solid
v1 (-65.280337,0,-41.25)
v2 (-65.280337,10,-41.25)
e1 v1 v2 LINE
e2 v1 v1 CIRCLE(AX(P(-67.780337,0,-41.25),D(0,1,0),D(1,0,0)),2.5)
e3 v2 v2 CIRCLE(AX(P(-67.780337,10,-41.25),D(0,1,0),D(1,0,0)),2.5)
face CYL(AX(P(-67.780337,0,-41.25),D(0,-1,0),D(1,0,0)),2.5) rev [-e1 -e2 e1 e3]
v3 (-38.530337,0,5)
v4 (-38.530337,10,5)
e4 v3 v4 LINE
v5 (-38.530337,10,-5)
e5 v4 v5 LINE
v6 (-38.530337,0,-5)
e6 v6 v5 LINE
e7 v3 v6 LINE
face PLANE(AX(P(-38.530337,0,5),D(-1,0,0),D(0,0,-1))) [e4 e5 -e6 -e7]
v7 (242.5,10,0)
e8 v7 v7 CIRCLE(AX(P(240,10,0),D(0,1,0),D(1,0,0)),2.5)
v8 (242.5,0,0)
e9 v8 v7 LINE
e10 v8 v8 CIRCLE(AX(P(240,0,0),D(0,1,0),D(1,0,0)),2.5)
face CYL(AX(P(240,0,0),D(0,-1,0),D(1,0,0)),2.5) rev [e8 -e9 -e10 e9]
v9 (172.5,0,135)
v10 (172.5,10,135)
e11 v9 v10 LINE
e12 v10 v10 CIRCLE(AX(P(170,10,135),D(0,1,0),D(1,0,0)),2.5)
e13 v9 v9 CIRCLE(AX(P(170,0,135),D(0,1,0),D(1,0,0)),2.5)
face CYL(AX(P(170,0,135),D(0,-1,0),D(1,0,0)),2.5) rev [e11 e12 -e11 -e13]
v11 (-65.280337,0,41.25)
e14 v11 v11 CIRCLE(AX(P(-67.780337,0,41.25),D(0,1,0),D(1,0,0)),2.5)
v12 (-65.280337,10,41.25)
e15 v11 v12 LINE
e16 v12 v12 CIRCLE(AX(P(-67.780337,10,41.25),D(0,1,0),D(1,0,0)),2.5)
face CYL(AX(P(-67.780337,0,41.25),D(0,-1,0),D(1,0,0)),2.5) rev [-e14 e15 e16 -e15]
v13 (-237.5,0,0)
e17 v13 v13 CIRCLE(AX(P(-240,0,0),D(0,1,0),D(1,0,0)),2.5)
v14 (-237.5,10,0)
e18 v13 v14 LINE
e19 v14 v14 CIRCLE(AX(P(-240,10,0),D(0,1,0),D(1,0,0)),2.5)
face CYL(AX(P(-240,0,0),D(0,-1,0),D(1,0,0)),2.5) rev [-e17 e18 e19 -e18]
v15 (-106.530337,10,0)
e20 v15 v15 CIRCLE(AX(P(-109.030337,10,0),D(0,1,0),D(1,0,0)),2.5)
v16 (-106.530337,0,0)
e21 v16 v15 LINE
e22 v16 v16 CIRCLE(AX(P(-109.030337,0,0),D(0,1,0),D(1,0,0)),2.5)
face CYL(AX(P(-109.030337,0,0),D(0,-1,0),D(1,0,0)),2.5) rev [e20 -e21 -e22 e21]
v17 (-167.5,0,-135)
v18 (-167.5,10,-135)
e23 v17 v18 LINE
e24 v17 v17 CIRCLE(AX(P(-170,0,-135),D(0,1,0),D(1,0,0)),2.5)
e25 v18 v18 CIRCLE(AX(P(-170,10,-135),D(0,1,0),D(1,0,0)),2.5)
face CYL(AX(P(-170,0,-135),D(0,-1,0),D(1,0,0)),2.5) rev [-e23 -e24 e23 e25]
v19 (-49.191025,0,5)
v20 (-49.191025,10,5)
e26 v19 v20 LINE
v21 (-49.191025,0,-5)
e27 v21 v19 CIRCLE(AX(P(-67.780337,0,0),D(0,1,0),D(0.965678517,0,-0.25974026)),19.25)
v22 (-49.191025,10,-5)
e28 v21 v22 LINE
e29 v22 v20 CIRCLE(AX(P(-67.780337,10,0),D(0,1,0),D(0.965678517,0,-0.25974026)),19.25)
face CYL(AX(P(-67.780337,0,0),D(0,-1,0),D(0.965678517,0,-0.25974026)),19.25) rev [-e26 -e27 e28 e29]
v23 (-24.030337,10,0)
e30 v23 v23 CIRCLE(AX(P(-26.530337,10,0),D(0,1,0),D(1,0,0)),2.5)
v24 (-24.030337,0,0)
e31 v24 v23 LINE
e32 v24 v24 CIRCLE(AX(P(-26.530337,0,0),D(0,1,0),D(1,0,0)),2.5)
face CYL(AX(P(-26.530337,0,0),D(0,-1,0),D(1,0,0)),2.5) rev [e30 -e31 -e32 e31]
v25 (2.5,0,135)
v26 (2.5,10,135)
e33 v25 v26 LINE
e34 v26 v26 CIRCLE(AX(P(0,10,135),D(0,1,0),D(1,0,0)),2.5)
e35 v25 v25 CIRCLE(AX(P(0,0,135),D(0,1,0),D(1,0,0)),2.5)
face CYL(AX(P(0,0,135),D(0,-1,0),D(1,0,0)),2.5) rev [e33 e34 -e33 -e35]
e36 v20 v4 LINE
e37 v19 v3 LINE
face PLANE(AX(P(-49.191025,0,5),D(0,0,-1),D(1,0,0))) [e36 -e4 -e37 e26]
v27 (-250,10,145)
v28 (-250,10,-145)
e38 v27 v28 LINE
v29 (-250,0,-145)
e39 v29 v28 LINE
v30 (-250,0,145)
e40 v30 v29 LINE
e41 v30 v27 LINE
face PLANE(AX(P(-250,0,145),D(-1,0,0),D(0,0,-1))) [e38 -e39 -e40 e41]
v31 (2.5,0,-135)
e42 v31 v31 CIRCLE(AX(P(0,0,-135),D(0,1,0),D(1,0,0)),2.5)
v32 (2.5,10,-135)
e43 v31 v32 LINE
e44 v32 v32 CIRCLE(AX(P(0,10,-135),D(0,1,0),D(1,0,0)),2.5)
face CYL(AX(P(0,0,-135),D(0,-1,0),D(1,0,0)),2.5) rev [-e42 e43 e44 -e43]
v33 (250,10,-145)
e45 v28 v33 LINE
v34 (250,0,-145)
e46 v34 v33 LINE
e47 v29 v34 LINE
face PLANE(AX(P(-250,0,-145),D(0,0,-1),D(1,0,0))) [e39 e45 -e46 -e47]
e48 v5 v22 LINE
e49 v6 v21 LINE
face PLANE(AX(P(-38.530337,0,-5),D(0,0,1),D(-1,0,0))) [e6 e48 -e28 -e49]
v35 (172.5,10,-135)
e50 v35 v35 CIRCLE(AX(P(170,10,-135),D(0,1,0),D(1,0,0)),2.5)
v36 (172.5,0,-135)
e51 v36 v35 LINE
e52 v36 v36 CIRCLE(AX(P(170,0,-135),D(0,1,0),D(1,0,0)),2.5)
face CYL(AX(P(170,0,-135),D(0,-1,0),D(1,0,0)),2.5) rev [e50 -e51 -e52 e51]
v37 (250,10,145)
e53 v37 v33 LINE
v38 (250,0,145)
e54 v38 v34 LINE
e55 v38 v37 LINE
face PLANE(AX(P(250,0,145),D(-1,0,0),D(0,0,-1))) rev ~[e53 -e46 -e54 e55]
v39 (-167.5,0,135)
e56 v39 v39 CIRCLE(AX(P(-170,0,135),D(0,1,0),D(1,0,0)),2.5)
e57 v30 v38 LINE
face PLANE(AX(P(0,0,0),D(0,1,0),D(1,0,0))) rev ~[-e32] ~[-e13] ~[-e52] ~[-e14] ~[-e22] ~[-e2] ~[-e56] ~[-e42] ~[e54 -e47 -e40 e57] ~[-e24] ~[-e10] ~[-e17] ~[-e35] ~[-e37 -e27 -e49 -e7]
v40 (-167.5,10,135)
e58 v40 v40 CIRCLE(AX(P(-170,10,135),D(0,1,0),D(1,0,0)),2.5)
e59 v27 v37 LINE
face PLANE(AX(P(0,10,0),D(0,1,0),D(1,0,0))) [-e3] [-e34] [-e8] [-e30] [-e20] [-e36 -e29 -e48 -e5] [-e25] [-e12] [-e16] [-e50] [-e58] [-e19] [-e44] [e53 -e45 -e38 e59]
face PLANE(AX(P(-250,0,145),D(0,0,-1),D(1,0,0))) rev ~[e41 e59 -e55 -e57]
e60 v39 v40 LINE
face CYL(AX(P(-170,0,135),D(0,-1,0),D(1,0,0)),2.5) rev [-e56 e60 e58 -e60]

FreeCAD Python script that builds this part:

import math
import FreeCAD as App
import Part
import Sketcher
from FreeCAD import Vector
Q = App.Units.Quantity

doc = App.newDocument("Part")
body = doc.addObject("PartDesign::Body", "Body")

# Sketch on XZ plane
sketch1 = body.newObject("Sketcher::SketchObject", "Sketch")
sketch1.AttachmentSupport = (doc.getObject("XZ_Plane"), [""])
sketch1.MapMode = "FlatFace"
sketch1.addGeometry(Part.LineSegment(Vector(-250, -145, 0), Vector(-250, 145, 0)), False)
sketch1.addGeometry(Part.LineSegment(Vector(-250, 145, 0), Vector(250, 145, 0)), False)
sketch1.addGeometry(Part.LineSegment(Vector(250, 145, 0), Vector(250, -145, 0)), False)
sketch1.addGeometry(Part.LineSegment(Vector(250, -145, 0), Vector(-250, -145, 0)), False)
sketch1.addGeometry(Part.Circle(Vector(-170, 135, 0), Vector(0, 0, 1), 2.5), False)
sketch1.addGeometry(Part.Circle(Vector(-67.8, 41.2, 0), Vector(0, 0, 1), 2.5), False)
sketch1.addGeometry(Part.Circle(Vector(0, 135, 0), Vector(0, 0, 1), 2.5), False)
sketch1.addGeometry(Part.Circle(Vector(170, 135, 0), Vector(0, 0, 1), 2.5), False)
sketch1.addGeometry(Part.Circle(Vector(-240, 0, 0), Vector(0, 0, 1), 2.5), False)
sketch1.addGeometry(Part.Circle(Vector(-109, 0, 0), Vector(0, 0, 1), 2.5), False)
sketch1.addGeometry(Part.LineSegment(Vector(-38.5, 5, 0), Vector(-49.2, 5, 0)), False)
sketch1.addGeometry(Part.ArcOfCircle(Part.Circle(Vector(-67.8, 0, 0), Vector(0, 0, 1), 19.2), math.radians(15), math.radians(345)), False)
sketch1.addGeometry(Part.LineSegment(Vector(-49.2, -5, 0), Vector(-38.5, -5, 0)), False)
sketch1.addGeometry(Part.LineSegment(Vector(-38.5, -5, 0), Vector(-38.5, 5, 0)), False)
sketch1.addGeometry(Part.Circle(Vector(-26.5, 0, 0), Vector(0, 0, 1), 2.5), False)
sketch1.addGeometry(Part.Circle(Vector(-67.8, -41.2, 0), Vector(0, 0, 1), 2.5), False)
sketch1.addGeometry(Part.Circle(Vector(-170, -135, 0), Vector(0, 0, 1), 2.5), False)
sketch1.addGeometry(Part.Circle(Vector(240, 0, 0), Vector(0, 0, 1), 2.5), False)
sketch1.addGeometry(Part.Circle(Vector(0, -135, 0), Vector(0, 0, 1), 2.5), False)
sketch1.addGeometry(Part.Circle(Vector(170, -135, 0), Vector(0, 0, 1), 2.5), False)
sketch1.addConstraint(Sketcher.Constraint("Coincident", 0, 2, 1, 1))
sketch1.addConstraint(Sketcher.Constraint("Coincident", 1, 2, 2, 1))
sketch1.addConstraint(Sketcher.Constraint("Coincident", 2, 2, 3, 1))
sketch1.addConstraint(Sketcher.Constraint("Coincident", 3, 2, 0, 1))
sketch1.addConstraint(Sketcher.Constraint("Coincident", 10, 2, 11, 1))
sketch1.addConstraint(Sketcher.Constraint("Coincident", 11, 2, 12, 1))
sketch1.addConstraint(Sketcher.Constraint("Coincident", 12, 2, 13, 1))
sketch1.addConstraint(Sketcher.Constraint("Coincident", 13, 2, 10, 1))
sketch1.addConstraint(Sketcher.Constraint("Vertical", 0))
sketch1.addConstraint(Sketcher.Constraint("Horizontal", 1))
sketch1.addConstraint(Sketcher.Constraint("Vertical", 2))
sketch1.addConstraint(Sketcher.Constraint("Horizontal", 3))
sketch1.addConstraint(Sketcher.Constraint("Horizontal", 10))
sketch1.addConstraint(Sketcher.Constraint("Horizontal", 12))
sketch1.addConstraint(Sketcher.Constraint("Vertical", 13))
sketch1.addConstraint(Sketcher.Constraint("Equal", 4, 5))
sketch1.addConstraint(Sketcher.Constraint("Equal", 5, 6))
sketch1.addConstraint(Sketcher.Constraint("Equal", 6, 7))
sketch1.addConstraint(Sketcher.Constraint("Equal", 7, 8))
sketch1.addConstraint(Sketcher.Constraint("Equal", 8, 9))
sketch1.addConstraint(Sketcher.Constraint("Equal", 9, 14))
sketch1.addConstraint(Sketcher.Constraint("Equal", 14, 15))
sketch1.addConstraint(Sketcher.Constraint("Equal", 15, 16))
sketch1.addConstraint(Sketcher.Constraint("Equal", 16, 17))
sketch1.addConstraint(Sketcher.Constraint("Equal", 17, 18))
sketch1.addConstraint(Sketcher.Constraint("Equal", 18, 19))
sketch1.addConstraint(Sketcher.Constraint("Symmetric", 7, 3, 16, 3, -1, 1))
sketch1.addConstraint(Sketcher.Constraint("Symmetric", 8, 3, 17, 3, -1, 1))
sketch1.addConstraint(Sketcher.Constraint("Symmetric", 6, 3, 18, 3, -1, 1))
sketch1.addConstraint(Sketcher.Constraint("Symmetric", 4, 3, 19, 3, -1, 1))
sketch1.addConstraint(Sketcher.Constraint("Symmetric", 0, 2, 2, 2, -1, 1))
sketch1.addConstraint(Sketcher.Constraint("Symmetric", 4, 3, 7, 3, -2))
sketch1.addConstraint(Sketcher.Constraint("Symmetric", 5, 3, 15, 3, -1))
sketch1.addConstraint(Sketcher.Constraint("Symmetric", 10, 2, 11, 2, -1))
sketch1.addConstraint(Sketcher.Constraint("PointOnObject", 6, 3, -2))
sketch1.addConstraint(Sketcher.Constraint("PointOnObject", 8, 3, -1))
sketch1.addConstraint(Sketcher.Constraint("PointOnObject", 9, 3, -1))
sketch1.addConstraint(Sketcher.Constraint("PointOnObject", 14, 3, -1))
sketch1.addConstraint(Sketcher.Constraint("Horizontal", 4, 3, 6, 3))
sketch1.addConstraint(Sketcher.Constraint("Vertical", 5, 3, 11, 3))
sketch1.addConstraint(Sketcher.Constraint("Diameter", 4, Q("5 mm")))
sketch1.addConstraint(Sketcher.Constraint("DistanceX", 1, 1, 1, 2, Q("500 mm")))
sketch1.addConstraint(Sketcher.Constraint("DistanceY", 0, 1, 0, 2, Q("290 mm")))
sketch1.addConstraint(Sketcher.Constraint("DistanceY", 13, 1, 13, 2, Q("10 mm")))
sketch1.addConstraint(Sketcher.Constraint("Radius", 11, Q("19.25 mm")))
sketch1.addConstraint(Sketcher.Constraint("DistanceX", 4, 3, -1, 1, Q("170 mm")))
sketch1.addConstraint(Sketcher.Constraint("DistanceY", -1, 1, 4, 3, Q("135 mm")))
sketch1.addConstraint(Sketcher.Constraint("DistanceX", 8, 3, -1, 1, Q("240 mm")))
sketch1.addConstraint(Sketcher.Constraint("DistanceX", 12, 2, 14, 3, Q("12 mm")))
sketch1.addConstraint(Sketcher.Constraint("DistanceX", 9, 3, 14, 3, Q("82.5 mm")))
sketch1.addConstraint(Sketcher.Constraint("DistanceY", 15, 3, 5, 3, Q("82.5 mm")))
sketch1.addConstraint(Sketcher.Constraint("DistanceX", 9, 3, 5, 3, Q("41.25 mm")))
sketch1.addConstraint(Sketcher.Constraint("DistanceX", 5, 3, -1, 1, Q("67.780337 mm")))
pad1 = body.newObject("PartDesign::Pad", "Pad")
pad1.Profile = sketch1
pad1.Length = 10
pad1.Reversed = True

doc.recompute()
